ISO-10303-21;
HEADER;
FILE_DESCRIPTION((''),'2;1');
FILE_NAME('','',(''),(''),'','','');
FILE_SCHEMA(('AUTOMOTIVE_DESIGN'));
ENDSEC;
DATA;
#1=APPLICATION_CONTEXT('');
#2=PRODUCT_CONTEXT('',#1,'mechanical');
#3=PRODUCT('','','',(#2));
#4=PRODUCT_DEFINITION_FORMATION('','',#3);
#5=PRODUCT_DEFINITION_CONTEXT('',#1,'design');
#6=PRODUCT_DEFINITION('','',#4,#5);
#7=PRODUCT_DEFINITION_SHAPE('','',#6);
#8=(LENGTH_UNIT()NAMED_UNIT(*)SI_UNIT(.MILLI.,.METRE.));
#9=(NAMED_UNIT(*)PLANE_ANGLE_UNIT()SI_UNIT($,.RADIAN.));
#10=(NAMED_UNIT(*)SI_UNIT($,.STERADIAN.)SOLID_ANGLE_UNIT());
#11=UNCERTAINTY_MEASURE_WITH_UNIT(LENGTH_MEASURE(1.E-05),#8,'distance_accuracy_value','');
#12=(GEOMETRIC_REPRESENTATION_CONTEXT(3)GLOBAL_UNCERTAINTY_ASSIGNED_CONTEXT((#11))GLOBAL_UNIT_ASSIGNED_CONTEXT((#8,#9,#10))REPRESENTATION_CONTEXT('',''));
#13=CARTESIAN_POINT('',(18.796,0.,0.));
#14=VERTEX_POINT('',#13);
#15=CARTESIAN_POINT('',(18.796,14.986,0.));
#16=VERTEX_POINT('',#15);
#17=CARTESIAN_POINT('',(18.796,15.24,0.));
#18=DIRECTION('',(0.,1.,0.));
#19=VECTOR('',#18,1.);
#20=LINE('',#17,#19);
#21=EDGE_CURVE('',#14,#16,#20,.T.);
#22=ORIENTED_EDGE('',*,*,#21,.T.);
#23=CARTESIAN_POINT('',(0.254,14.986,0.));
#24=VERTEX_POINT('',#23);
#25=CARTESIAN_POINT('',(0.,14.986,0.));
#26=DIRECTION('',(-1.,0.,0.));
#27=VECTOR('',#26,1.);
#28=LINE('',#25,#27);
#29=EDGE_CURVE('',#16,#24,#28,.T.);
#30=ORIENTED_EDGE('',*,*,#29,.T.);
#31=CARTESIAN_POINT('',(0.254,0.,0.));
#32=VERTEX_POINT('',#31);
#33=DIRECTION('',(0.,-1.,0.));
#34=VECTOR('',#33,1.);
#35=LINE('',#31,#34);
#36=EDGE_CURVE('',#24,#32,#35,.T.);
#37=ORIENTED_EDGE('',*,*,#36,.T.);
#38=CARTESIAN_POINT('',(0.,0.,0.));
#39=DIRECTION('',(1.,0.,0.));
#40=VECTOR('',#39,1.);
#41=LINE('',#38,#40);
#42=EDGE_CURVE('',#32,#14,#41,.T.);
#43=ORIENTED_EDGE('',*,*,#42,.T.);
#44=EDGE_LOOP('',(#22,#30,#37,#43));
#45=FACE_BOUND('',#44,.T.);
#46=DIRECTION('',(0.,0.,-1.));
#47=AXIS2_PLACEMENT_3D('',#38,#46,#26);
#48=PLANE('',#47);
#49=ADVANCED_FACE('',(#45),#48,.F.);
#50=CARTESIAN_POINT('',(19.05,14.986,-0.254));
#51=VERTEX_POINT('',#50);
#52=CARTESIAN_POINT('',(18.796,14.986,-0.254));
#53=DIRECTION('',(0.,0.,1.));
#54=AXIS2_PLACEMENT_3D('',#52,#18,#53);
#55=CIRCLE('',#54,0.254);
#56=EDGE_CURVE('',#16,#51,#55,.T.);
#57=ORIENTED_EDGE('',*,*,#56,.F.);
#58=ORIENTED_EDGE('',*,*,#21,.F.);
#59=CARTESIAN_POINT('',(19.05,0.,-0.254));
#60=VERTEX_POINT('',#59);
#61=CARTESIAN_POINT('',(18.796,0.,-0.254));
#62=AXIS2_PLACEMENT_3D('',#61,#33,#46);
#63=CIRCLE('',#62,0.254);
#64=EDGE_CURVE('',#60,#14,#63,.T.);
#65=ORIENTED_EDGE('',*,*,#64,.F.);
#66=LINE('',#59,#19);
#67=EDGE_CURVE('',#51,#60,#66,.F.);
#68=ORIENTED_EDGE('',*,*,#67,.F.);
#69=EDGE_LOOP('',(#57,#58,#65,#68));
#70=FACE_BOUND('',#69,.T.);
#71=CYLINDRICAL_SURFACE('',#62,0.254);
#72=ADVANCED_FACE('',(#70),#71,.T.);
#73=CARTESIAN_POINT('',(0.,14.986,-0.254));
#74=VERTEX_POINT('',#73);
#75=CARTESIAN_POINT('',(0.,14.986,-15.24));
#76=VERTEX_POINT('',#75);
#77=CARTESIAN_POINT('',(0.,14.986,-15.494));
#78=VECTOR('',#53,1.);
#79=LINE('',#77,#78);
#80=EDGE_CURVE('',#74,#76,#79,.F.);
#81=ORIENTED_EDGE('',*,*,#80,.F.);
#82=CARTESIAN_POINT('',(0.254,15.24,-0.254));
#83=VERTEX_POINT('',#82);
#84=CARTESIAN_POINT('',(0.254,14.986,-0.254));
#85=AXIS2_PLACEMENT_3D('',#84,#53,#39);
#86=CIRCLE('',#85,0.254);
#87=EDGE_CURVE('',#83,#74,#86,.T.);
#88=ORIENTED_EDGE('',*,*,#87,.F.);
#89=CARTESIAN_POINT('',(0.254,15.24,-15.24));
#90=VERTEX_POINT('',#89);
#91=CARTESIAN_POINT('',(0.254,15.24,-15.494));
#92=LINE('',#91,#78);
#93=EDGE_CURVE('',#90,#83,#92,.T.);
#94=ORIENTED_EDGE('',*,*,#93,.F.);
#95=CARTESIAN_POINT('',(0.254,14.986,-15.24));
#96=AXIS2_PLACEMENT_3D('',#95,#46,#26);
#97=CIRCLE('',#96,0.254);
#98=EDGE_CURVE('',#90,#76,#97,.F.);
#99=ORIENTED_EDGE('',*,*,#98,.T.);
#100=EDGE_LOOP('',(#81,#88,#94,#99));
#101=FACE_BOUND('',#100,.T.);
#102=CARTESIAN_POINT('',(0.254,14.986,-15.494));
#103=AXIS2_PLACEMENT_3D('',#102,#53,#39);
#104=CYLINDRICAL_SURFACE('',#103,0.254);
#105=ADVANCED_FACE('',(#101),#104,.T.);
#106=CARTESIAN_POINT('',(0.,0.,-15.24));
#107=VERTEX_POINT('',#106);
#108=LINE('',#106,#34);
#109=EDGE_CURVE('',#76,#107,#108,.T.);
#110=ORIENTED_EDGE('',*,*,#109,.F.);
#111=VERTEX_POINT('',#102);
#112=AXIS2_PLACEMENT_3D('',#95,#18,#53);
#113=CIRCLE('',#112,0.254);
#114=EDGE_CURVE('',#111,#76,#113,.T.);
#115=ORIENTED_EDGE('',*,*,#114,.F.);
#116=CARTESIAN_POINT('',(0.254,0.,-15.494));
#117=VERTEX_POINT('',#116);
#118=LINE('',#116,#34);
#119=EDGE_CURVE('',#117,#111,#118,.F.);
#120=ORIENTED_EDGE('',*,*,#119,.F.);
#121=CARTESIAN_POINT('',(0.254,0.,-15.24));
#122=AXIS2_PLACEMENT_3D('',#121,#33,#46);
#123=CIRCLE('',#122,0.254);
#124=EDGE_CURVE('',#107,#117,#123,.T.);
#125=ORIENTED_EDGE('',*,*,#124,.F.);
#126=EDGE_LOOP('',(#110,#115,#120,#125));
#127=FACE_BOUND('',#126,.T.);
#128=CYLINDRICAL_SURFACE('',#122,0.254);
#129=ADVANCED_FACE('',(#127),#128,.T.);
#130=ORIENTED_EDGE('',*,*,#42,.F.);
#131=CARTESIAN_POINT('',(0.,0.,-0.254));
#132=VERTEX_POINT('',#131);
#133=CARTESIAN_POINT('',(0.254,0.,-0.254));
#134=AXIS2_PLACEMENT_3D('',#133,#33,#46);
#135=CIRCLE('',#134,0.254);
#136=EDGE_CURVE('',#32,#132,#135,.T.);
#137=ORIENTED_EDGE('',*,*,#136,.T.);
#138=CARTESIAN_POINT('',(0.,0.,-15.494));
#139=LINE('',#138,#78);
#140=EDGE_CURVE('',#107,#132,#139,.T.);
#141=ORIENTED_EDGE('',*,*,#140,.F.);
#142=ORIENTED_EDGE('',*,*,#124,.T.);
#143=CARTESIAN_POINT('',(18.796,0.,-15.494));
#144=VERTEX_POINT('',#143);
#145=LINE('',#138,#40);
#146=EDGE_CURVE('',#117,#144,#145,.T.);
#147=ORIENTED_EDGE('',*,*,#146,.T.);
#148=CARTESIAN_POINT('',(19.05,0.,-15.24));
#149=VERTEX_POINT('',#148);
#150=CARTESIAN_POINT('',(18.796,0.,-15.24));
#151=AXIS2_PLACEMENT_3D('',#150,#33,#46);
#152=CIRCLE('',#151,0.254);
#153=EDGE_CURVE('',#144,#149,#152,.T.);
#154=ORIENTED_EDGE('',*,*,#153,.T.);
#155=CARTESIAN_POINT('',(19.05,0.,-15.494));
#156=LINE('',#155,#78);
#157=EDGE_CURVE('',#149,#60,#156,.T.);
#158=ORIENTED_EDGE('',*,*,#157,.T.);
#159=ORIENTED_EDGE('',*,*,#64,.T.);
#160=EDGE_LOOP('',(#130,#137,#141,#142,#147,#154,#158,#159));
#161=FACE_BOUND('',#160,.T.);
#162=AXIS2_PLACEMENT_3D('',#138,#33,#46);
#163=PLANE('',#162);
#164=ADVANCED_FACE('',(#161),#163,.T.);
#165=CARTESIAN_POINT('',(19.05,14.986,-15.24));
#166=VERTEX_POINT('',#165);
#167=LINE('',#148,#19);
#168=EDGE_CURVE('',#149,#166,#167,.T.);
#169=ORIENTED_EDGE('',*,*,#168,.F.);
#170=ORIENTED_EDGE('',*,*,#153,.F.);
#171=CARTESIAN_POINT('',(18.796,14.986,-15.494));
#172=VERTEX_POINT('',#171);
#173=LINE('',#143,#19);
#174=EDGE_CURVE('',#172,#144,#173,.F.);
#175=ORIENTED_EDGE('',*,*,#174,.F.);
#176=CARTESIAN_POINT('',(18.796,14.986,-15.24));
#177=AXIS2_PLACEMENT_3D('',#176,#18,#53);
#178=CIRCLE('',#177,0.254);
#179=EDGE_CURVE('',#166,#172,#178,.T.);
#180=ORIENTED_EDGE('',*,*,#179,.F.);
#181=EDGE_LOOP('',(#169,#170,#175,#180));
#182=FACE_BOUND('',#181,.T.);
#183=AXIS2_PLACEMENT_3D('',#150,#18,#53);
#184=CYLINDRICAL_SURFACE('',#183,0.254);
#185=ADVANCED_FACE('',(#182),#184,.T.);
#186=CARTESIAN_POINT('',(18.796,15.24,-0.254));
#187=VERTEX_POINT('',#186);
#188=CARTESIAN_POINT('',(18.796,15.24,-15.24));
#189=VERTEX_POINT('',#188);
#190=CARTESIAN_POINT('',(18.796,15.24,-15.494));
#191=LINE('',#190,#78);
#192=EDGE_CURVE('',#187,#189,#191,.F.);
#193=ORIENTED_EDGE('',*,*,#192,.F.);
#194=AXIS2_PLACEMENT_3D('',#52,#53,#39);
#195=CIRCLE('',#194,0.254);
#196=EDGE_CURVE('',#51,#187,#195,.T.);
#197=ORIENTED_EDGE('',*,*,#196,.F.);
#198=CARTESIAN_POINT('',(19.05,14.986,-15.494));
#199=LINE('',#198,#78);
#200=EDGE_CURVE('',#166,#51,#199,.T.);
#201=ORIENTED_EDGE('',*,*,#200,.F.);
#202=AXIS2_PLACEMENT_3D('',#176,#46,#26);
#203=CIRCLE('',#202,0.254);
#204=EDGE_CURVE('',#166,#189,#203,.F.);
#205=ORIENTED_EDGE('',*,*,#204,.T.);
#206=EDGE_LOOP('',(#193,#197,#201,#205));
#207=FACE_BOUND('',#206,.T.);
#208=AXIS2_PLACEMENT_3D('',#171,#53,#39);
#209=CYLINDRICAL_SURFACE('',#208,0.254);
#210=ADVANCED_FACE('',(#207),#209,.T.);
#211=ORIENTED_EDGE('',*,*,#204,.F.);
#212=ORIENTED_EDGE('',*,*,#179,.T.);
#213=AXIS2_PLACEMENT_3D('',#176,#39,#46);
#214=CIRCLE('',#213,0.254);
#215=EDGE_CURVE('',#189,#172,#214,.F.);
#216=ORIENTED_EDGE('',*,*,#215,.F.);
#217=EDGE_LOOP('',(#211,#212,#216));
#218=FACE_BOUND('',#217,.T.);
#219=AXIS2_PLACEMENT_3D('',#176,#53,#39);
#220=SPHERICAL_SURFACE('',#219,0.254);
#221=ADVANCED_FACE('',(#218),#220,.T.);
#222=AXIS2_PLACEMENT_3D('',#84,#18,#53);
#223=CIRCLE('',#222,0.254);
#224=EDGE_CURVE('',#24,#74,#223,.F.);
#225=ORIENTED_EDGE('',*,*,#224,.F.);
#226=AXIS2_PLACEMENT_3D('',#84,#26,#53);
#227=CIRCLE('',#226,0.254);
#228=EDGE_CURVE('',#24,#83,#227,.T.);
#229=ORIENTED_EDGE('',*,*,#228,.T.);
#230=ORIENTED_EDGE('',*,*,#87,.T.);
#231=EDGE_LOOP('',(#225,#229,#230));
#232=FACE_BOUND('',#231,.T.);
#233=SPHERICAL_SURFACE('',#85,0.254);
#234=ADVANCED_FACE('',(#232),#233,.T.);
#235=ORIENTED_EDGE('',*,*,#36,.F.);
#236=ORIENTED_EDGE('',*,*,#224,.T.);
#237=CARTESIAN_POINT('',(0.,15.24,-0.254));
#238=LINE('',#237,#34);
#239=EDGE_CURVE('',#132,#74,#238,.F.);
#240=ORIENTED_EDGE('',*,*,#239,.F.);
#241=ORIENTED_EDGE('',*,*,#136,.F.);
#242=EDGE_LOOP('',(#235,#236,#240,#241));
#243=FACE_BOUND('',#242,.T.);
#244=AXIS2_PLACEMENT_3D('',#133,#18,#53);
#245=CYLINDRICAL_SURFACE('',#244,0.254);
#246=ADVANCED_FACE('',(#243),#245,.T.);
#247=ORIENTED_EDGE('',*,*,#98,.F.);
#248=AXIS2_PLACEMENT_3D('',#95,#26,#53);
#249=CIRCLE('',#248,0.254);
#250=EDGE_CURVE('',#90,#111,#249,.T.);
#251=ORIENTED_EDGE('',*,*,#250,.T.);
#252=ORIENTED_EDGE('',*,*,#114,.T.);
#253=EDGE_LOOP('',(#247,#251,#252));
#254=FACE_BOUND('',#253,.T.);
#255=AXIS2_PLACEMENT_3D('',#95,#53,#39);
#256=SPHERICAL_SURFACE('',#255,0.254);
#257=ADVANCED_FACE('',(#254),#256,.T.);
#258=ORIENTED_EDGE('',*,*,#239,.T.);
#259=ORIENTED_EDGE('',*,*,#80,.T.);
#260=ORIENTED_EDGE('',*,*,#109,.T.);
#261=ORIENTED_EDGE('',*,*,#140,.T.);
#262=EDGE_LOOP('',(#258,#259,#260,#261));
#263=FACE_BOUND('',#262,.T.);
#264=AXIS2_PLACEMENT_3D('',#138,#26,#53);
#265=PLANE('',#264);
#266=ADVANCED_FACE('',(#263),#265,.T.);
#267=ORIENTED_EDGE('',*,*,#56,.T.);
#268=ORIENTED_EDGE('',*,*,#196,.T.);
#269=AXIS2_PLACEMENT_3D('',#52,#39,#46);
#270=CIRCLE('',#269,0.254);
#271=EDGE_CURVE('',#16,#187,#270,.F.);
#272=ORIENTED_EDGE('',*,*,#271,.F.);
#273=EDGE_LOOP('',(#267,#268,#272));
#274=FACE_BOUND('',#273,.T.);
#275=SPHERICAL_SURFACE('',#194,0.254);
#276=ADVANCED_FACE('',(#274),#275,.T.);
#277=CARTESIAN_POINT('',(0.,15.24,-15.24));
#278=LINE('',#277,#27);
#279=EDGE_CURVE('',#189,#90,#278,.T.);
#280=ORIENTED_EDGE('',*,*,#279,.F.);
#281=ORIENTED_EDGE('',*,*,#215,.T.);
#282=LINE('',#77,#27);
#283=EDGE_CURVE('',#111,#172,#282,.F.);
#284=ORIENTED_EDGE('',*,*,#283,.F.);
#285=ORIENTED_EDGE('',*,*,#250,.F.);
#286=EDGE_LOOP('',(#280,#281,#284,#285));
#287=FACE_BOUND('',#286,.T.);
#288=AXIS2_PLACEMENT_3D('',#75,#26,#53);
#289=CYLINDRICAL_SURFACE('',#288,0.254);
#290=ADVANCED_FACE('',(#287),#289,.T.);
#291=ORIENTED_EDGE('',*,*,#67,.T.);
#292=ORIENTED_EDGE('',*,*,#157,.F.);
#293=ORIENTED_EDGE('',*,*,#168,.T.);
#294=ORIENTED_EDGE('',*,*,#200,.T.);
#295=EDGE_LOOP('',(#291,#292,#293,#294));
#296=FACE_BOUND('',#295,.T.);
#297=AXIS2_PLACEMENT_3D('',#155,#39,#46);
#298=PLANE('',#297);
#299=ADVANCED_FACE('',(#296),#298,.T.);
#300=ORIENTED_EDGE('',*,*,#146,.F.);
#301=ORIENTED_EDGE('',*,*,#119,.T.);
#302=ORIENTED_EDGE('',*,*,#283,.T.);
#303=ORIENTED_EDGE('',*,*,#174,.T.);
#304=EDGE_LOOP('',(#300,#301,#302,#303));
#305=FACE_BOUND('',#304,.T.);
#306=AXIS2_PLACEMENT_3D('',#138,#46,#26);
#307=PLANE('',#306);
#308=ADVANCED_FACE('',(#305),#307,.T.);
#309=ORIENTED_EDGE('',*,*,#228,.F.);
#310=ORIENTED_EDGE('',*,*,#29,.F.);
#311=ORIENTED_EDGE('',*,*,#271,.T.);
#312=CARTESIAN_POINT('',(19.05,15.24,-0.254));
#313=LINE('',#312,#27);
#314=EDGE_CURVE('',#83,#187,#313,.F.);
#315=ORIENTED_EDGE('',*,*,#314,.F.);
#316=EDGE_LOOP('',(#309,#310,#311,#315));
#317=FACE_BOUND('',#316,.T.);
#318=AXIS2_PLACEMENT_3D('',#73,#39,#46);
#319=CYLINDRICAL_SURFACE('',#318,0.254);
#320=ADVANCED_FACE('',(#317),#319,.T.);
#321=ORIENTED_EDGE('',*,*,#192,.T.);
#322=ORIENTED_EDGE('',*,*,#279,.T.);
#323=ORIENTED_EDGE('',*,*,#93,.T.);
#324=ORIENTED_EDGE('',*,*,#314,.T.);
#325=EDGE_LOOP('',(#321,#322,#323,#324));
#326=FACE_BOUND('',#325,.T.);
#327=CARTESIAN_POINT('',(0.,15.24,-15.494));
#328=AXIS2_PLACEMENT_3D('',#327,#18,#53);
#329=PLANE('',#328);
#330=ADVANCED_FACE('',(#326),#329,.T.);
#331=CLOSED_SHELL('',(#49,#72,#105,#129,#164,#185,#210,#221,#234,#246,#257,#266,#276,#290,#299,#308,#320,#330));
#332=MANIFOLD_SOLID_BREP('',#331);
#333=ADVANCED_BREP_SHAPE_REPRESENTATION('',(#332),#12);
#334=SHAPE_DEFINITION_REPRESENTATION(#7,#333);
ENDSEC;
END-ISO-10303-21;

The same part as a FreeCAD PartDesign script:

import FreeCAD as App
import Part
import Sketcher

V = App.Vector
Q = App.Units.Quantity


def edges_at(feature, points):
    """Names of the edges that pass closest to the given points."""
    edges = feature.Shape.Edges
    near = lambda p: min(range(len(edges)), key=lambda i: edges[i].distToShape(Part.Vertex(*p))[0])
    return sorted({f"Edge{near(p) + 1}" for p in points})


def add_polygon(sketch, points):
    """Adds a closed chain of lines whose ends are joined by coincident constraints."""
    first, n = sketch.GeometryCount, len(points)
    for a, b in zip(points, points[1:] + points[:1]):
        sketch.addGeometry(Part.LineSegment(App.Vector(*a, 0), App.Vector(*b, 0)), False)
    for i in range(n):
        sketch.addConstraint(Sketcher.Constraint("Coincident", first + i, 2, first + (i + 1) % n, 1))

doc = App.newDocument("Part")
params = doc.addObject("Spreadsheet::Sheet", "Params")
for row, (alias, value) in enumerate([
    ("sketch1_height", "0.6 in"),
    ("sketch1_width", "0.75 in"),
    ("pad1_length", "0.61 in"),
    ("fillet_radius", "0.01 in"),
], start=1):
    params.set(f"A{row}", alias)
    params.set(f"B{row}", "=" + value)
    params.setAlias(f"B{row}", alias)

body = doc.addObject("PartDesign::Body", "Body")

sketch1 = doc.addObject("Sketcher::SketchObject", "Sketch")
body.addObject(sketch1)
sketch1.AttachmentSupport = (doc.XY_Plane, [""])
sketch1.MapMode = "FlatFace"
add_polygon(sketch1, [(0, 15), (0, 0), (19, 0), (19, 15)])
sketch1.addConstraint(Sketcher.Constraint("Vertical", 0))
sketch1.addConstraint(Sketcher.Constraint("Horizontal", 1))
sketch1.addConstraint(Sketcher.Constraint("Vertical", 2))
sketch1.addConstraint(Sketcher.Constraint("Horizontal", 3))
sketch1.addConstraint(Sketcher.Constraint("Coincident", 0, 2, -1, 1))
sketch1.addConstraint(Sketcher.Constraint("DistanceY", 0, 2, 0, 1, Q("0.6 in")))
sketch1.addConstraint(Sketcher.Constraint("DistanceX", 1, 1, 1, 2, Q("0.75 in")))
sketch1.setExpression("Constraints[9]", "Params.sketch1_height")
sketch1.setExpression("Constraints[10]", "Params.sketch1_width")
pad1 = doc.addObject("PartDesign::Pad", "Pad")
body.addObject(pad1)
pad1.Profile = sketch1
pad1.setExpression("Length", "Params.pad1_length")
pad1.Reversed = True
doc.recompute()

fillet = doc.addObject("PartDesign::Fillet", "Fillet")
body.addObject(fillet)
fillet.Base = (pad1, edges_at(pad1, [
    (19.05, 7.62, -15.494),
    (9.525, 15.24, -15.494),
    (0, 7.62, -15.494),
    (9.525, 15.24, 0),
    (19.05, 7.62, 0),
    (0, 7.62, 0),
    (0, 15.24, -7.747),
    (19.05, 15.24, -7.747),
]))
fillet.setExpression("Radius", "Params.fillet_radius")

doc.recompute()
